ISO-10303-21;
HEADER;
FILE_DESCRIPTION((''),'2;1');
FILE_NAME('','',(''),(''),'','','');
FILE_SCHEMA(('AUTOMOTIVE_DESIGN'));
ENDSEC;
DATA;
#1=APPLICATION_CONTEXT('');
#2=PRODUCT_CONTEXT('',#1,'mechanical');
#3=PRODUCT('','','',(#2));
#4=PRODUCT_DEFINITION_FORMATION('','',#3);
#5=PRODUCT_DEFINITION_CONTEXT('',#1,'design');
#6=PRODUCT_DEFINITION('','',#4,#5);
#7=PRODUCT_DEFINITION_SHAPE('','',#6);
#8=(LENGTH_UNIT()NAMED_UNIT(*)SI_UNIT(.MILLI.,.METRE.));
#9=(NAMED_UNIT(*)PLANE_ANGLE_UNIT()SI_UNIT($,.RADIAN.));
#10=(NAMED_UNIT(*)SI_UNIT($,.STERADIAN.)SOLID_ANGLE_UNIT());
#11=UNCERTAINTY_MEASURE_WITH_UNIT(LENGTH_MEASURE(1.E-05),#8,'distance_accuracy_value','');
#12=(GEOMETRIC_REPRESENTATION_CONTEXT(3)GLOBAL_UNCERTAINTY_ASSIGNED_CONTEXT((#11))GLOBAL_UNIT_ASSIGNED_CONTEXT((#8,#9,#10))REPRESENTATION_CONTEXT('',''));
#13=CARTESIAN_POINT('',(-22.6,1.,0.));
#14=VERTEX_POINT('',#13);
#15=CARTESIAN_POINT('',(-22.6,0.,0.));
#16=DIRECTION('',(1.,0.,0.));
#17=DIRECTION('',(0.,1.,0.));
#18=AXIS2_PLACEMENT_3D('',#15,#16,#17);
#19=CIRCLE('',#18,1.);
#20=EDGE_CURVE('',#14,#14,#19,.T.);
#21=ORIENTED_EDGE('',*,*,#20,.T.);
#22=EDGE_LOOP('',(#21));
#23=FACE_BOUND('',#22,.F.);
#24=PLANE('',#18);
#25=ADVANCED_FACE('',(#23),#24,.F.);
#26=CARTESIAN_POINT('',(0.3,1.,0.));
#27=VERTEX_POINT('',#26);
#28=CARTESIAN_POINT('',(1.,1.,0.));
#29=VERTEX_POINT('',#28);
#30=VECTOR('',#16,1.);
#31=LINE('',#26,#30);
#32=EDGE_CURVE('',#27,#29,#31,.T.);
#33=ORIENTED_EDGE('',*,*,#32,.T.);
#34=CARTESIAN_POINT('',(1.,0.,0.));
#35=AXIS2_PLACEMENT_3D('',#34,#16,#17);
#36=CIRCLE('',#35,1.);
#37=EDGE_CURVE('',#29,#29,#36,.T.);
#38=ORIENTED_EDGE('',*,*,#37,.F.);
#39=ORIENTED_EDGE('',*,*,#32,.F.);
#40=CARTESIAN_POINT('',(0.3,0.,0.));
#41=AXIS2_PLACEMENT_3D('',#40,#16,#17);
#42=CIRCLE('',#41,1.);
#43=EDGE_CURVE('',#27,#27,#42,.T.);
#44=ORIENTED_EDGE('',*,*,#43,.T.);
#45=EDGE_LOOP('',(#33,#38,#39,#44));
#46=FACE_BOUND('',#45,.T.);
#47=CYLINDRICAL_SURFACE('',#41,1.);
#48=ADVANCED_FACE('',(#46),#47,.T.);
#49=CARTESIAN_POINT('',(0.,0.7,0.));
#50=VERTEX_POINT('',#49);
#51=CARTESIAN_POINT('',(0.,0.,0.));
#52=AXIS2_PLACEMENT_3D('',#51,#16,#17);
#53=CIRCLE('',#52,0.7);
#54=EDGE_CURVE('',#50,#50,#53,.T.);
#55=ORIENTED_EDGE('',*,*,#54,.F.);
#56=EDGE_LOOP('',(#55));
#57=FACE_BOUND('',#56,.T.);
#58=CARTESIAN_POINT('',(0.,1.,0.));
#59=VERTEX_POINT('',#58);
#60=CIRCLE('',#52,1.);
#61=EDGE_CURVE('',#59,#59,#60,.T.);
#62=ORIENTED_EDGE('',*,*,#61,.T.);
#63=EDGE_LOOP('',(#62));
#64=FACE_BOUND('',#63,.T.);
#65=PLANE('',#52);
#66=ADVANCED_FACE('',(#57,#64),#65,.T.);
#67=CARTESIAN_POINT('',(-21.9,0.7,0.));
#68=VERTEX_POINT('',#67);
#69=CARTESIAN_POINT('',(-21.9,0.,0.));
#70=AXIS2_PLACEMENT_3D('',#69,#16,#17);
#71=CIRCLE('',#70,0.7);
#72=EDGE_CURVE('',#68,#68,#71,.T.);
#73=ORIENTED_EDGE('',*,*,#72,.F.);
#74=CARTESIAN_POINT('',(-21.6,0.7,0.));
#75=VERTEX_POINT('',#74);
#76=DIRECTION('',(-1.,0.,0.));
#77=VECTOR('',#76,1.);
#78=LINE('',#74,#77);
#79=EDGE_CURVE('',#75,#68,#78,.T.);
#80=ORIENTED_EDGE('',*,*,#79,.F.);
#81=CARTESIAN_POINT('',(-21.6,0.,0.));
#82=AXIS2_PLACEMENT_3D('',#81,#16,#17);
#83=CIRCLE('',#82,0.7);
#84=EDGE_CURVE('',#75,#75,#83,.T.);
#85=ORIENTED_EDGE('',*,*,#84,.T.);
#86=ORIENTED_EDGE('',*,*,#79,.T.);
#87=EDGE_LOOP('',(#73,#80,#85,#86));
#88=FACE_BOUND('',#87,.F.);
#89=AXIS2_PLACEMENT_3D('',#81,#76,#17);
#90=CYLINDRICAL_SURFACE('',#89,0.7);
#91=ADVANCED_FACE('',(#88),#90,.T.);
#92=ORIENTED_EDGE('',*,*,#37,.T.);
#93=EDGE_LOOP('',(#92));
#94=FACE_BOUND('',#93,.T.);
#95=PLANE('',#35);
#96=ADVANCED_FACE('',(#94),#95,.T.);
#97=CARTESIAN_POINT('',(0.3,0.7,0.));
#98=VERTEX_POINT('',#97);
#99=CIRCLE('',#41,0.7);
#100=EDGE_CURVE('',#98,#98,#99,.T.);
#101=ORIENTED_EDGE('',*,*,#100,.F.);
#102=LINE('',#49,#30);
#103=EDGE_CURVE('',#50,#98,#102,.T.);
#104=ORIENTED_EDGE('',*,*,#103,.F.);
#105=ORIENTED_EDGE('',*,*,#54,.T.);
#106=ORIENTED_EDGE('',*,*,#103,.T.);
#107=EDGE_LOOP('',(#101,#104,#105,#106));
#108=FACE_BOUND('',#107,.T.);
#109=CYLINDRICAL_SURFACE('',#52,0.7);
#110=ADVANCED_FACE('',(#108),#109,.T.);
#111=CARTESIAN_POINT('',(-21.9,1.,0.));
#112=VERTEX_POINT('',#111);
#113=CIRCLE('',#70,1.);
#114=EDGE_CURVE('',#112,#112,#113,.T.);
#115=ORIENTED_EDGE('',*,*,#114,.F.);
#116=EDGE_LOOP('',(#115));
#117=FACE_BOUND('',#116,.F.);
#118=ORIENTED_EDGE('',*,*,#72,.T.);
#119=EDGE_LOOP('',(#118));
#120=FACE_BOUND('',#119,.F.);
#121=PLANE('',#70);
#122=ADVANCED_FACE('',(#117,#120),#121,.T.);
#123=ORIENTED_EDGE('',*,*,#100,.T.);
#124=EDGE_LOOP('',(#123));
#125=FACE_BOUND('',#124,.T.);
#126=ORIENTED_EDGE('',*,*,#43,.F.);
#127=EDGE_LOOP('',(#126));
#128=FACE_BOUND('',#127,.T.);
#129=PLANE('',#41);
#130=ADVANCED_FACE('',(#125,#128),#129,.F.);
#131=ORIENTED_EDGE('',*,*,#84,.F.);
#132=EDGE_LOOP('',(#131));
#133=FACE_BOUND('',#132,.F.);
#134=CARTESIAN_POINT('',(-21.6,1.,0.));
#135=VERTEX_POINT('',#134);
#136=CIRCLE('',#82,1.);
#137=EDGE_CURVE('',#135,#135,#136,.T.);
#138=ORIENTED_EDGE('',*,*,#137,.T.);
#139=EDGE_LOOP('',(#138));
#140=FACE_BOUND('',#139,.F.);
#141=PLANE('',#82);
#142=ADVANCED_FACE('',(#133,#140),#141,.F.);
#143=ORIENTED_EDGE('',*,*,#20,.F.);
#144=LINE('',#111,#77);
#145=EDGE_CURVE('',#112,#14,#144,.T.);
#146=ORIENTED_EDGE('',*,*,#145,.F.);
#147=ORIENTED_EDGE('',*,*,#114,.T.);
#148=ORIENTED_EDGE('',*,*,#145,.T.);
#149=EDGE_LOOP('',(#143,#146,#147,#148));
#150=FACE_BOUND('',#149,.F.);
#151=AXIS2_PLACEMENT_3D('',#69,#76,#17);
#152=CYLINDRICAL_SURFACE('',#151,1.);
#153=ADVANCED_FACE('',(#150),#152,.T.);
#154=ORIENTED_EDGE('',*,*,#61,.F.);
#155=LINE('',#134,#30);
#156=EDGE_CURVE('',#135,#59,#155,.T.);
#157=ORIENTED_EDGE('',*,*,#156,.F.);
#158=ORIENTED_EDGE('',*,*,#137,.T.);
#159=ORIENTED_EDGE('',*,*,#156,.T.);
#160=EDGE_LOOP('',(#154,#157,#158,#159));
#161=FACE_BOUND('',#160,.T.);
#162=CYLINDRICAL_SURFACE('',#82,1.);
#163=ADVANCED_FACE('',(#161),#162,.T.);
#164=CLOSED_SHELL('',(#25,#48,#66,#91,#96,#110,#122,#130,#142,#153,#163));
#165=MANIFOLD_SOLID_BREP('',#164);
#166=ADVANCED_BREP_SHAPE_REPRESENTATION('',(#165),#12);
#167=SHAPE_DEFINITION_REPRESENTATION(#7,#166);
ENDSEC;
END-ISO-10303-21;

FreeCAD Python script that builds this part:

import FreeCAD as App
import Part
import Sketcher
from FreeCAD import Vector


def add_polygon(sketch, points):
    """Adds a closed chain of lines whose ends are joined by coincident constraints."""
    first, n = sketch.GeometryCount, len(points)
    for a, b in zip(points, points[1:] + points[:1]):
        sketch.addGeometry(Part.LineSegment(App.Vector(*a, 0), App.Vector(*b, 0)), False)
    for i in range(n):
        sketch.addConstraint(Sketcher.Constraint("Coincident", first + i, 2, first + (i + 1) % n, 1))

doc = App.newDocument("Part")
params = doc.addObject("Spreadsheet::Sheet", "Params")
for row, (alias, value) in enumerate([
    ("sketch1_height", "1 mm"),
    ("sketch1_width", "21.6 mm"),
    ("sketch1_width2", "0.3 mm"),
    ("revolution_angle", "360 deg"),
], start=1):
    params.set(f"A{row}", alias)
    params.set(f"B{row}", "=" + value)
    params.setAlias(f"B{row}", alias)

body = doc.addObject("PartDesign::Body", "Body")

# Sketch on XY plane
sketch1 = body.newObject("Sketcher::SketchObject", "Sketch")
sketch1.AttachmentSupport = (doc.getObject("XY_Plane"), [""])
sketch1.MapMode = "FlatFace"
add_polygon(sketch1, [(0, 1), (-21.6, 1), (-21.6, 0.7), (-21.9, 0.7), (-21.9, 1), (-22.6, 1), (-22.6, 0), (1, 0), (1, 1), (0.3, 1), (0.3, 0.7), (0, 0.7)])  # lines 0-11
sketch1.addConstraint([
    Sketcher.Constraint("Horizontal", 0),
    Sketcher.Constraint("Vertical", 1),
    Sketcher.Constraint("Horizontal", 2),
    Sketcher.Constraint("Vertical", 3),
    Sketcher.Constraint("Horizontal", 4),
    Sketcher.Constraint("Vertical", 5),
    Sketcher.Constraint("Horizontal", 6),
    Sketcher.Constraint("Vertical", 7),
    Sketcher.Constraint("Horizontal", 8),
    Sketcher.Constraint("Vertical", 9),
    Sketcher.Constraint("Horizontal", 10),
    Sketcher.Constraint("Vertical", 11),
    Sketcher.Constraint("PointOnObject", 5, 2, -1),
    Sketcher.Constraint("PointOnObject", 10, 2, -2),
    Sketcher.Constraint("Horizontal", 0, 2, 3, 2),
    Sketcher.Constraint("Horizontal", 4, 2, 7, 2),
    Sketcher.Constraint("Horizontal", 2, 2, 9, 2),
    Sketcher.Constraint("Equal", 4, 8),
    Sketcher.Constraint("Equal", 2, 10),
    Sketcher.Constraint("Equal", 10, 1),
    Sketcher.Constraint("DistanceY", 5, 2, 5, 1, 1.0),
    Sketcher.Constraint("DistanceX", 0, 2, 0, 1, 21.6),
    Sketcher.Constraint("DistanceX", 2, 2, 2, 1, 0.3),
    Sketcher.Constraint("DistanceX", -1, 1, 6, 2, 1.0),
])
sketch1.setExpression("Constraints[32]", "Params.sketch1_height")
sketch1.setExpression("Constraints[33]", "Params.sketch1_width")
sketch1.setExpression("Constraints[34]", "Params.sketch1_width2")
revolution = body.newObject("PartDesign::Revolution", "Revolution")
revolution.Profile = sketch1
revolution.ReferenceAxis = (sketch1, ["H_Axis"])
revolution.setExpression("Angle", "Params.revolution_angle")

doc.recompute()
